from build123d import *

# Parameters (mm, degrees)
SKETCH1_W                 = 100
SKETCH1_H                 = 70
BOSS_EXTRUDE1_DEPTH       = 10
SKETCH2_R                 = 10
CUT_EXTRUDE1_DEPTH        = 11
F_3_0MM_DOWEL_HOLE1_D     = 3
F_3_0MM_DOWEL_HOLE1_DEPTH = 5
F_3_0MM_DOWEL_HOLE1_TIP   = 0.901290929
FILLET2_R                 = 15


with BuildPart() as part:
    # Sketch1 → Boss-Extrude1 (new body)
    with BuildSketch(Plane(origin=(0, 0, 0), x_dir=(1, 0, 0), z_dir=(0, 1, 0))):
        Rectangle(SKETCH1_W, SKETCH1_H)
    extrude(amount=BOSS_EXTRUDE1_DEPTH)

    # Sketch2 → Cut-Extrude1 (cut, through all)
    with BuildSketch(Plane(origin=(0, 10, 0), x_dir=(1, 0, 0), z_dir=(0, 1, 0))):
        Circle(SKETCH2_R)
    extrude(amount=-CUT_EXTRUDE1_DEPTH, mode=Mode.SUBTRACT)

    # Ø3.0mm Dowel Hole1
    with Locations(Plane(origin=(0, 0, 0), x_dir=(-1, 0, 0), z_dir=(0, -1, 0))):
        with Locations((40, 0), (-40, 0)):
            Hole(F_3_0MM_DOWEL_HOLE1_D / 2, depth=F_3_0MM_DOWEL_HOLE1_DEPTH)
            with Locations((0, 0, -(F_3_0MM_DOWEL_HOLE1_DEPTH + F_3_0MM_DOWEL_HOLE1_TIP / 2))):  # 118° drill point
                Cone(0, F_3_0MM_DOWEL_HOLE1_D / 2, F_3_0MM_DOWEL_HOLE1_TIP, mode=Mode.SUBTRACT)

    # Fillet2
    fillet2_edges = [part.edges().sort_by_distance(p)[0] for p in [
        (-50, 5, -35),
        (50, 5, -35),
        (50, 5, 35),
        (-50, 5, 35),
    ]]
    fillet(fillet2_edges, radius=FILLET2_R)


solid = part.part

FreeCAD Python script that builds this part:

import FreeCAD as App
import Part
import Sketcher

V = App.Vector


def edges_at(feature, points):
    """Names of the edges that pass closest to the given points."""
    edges = feature.Shape.Edges
    near = lambda p: min(range(len(edges)), key=lambda i: edges[i].distToShape(Part.Vertex(*p))[0])
    return sorted({f"Edge{near(p) + 1}" for p in points})


def add_polygon(sketch, points):
    """Adds a closed chain of lines whose ends are joined by coincident constraints."""
    first, n = sketch.GeometryCount, len(points)
    for a, b in zip(points, points[1:] + points[:1]):
        sketch.addGeometry(Part.LineSegment(App.Vector(*a, 0), App.Vector(*b, 0)), False)
    for i in range(n):
        sketch.addConstraint(Sketcher.Constraint("Coincident", first + i, 2, first + (i + 1) % n, 1))

doc = App.newDocument("Part")
body = doc.addObject("PartDesign::Body", "Body")

# Sketch on XZ plane
sketch1 = body.newObject("Sketcher::SketchObject", "Sketch")
sketch1.AttachmentSupport = (doc.getObject("XZ_Plane"), [""])
sketch1.MapMode = "FlatFace"
add_polygon(sketch1, [(-50, -35), (-50, 35), (50, 35), (50, -35)])  # lines 0-3
sketch1.addConstraint([
    Sketcher.Constraint("Vertical", 0),
    Sketcher.Constraint("Horizontal", 1),
    Sketcher.Constraint("Vertical", 2),
    Sketcher.Constraint("Horizontal", 3),
    Sketcher.Constraint("Symmetric", 0, 2, 2, 2, -1, 1),
    Sketcher.Constraint("DistanceX", 1, 1, 1, 2, 100.0),
    Sketcher.Constraint("DistanceY", 0, 1, 0, 2, 70.0),
])
pad1 = body.newObject("PartDesign::Pad", "Pad")
pad1.Profile = sketch1
pad1.Length = 10
pad1.Reversed = True

# Sketch on XZ plane
sketch2 = body.newObject("Sketcher::SketchObject", "Sketch001")
sketch2.AttachmentSupport = (doc.getObject("XZ_Plane"), [""])
sketch2.MapMode = "FlatFace"
sketch2.AttachmentOffset = App.Placement(V(0, 0, -10), App.Rotation())
sketch2.addGeometry(Part.Circle(V(0, 0, 0), V(0, 0, 1), 10), False)
sketch2.addConstraint([
    Sketcher.Constraint("Coincident", 0, 3, -1, 1),
    Sketcher.Constraint("Diameter", 0, 20.0),
])
pocket1 = body.newObject("PartDesign::Pocket", "Pocket")
pocket1.Profile = sketch2
pocket1.Type = "ThroughAll"
pocket1.Reversed = True

# Sketch on XZ plane
sketch3 = body.newObject("Sketcher::SketchObject", "Sketch002")
sketch3.AttachmentSupport = (doc.getObject("XZ_Plane"), [""])
sketch3.MapMode = "FlatFace"
sketch3.addGeometry([
    Part.Circle(V(-40, 0, 0), V(0, 0, 1), 1.5),
    Part.Circle(V(40, 0, 0), V(0, 0, 1), 1.5),
], False)
sketch3.addConstraint([
    Sketcher.Constraint("Equal", 0, 1),
    Sketcher.Constraint("Symmetric", 0, 3, 1, 3, -1, 1),
    Sketcher.Constraint("PointOnObject", 0, 3, -1),
    Sketcher.Constraint("Diameter", 0, 3.0),
    Sketcher.Constraint("DistanceX", 0, 3, -1, 1, 40.0),
])
doc.recompute()
hole = body.newObject("PartDesign::Hole", "Hole")
hole.Profile = sketch3
hole.ThreadType = "None"
hole.Diameter = 3
hole.DepthType = "Dimension"
hole.Depth = 5
hole.DrillPoint = "Angled"
hole.DrillPointAngle = 118
doc.recompute()

fillet = body.newObject("PartDesign::Fillet", "Fillet")
fillet.Base = (hole, edges_at(hole, [
    (-50, 5, -35),
    (50, 5, -35),
    (50, 5, 35),
    (-50, 5, 35),
]))
fillet.Radius = 15

doc.recompute()
